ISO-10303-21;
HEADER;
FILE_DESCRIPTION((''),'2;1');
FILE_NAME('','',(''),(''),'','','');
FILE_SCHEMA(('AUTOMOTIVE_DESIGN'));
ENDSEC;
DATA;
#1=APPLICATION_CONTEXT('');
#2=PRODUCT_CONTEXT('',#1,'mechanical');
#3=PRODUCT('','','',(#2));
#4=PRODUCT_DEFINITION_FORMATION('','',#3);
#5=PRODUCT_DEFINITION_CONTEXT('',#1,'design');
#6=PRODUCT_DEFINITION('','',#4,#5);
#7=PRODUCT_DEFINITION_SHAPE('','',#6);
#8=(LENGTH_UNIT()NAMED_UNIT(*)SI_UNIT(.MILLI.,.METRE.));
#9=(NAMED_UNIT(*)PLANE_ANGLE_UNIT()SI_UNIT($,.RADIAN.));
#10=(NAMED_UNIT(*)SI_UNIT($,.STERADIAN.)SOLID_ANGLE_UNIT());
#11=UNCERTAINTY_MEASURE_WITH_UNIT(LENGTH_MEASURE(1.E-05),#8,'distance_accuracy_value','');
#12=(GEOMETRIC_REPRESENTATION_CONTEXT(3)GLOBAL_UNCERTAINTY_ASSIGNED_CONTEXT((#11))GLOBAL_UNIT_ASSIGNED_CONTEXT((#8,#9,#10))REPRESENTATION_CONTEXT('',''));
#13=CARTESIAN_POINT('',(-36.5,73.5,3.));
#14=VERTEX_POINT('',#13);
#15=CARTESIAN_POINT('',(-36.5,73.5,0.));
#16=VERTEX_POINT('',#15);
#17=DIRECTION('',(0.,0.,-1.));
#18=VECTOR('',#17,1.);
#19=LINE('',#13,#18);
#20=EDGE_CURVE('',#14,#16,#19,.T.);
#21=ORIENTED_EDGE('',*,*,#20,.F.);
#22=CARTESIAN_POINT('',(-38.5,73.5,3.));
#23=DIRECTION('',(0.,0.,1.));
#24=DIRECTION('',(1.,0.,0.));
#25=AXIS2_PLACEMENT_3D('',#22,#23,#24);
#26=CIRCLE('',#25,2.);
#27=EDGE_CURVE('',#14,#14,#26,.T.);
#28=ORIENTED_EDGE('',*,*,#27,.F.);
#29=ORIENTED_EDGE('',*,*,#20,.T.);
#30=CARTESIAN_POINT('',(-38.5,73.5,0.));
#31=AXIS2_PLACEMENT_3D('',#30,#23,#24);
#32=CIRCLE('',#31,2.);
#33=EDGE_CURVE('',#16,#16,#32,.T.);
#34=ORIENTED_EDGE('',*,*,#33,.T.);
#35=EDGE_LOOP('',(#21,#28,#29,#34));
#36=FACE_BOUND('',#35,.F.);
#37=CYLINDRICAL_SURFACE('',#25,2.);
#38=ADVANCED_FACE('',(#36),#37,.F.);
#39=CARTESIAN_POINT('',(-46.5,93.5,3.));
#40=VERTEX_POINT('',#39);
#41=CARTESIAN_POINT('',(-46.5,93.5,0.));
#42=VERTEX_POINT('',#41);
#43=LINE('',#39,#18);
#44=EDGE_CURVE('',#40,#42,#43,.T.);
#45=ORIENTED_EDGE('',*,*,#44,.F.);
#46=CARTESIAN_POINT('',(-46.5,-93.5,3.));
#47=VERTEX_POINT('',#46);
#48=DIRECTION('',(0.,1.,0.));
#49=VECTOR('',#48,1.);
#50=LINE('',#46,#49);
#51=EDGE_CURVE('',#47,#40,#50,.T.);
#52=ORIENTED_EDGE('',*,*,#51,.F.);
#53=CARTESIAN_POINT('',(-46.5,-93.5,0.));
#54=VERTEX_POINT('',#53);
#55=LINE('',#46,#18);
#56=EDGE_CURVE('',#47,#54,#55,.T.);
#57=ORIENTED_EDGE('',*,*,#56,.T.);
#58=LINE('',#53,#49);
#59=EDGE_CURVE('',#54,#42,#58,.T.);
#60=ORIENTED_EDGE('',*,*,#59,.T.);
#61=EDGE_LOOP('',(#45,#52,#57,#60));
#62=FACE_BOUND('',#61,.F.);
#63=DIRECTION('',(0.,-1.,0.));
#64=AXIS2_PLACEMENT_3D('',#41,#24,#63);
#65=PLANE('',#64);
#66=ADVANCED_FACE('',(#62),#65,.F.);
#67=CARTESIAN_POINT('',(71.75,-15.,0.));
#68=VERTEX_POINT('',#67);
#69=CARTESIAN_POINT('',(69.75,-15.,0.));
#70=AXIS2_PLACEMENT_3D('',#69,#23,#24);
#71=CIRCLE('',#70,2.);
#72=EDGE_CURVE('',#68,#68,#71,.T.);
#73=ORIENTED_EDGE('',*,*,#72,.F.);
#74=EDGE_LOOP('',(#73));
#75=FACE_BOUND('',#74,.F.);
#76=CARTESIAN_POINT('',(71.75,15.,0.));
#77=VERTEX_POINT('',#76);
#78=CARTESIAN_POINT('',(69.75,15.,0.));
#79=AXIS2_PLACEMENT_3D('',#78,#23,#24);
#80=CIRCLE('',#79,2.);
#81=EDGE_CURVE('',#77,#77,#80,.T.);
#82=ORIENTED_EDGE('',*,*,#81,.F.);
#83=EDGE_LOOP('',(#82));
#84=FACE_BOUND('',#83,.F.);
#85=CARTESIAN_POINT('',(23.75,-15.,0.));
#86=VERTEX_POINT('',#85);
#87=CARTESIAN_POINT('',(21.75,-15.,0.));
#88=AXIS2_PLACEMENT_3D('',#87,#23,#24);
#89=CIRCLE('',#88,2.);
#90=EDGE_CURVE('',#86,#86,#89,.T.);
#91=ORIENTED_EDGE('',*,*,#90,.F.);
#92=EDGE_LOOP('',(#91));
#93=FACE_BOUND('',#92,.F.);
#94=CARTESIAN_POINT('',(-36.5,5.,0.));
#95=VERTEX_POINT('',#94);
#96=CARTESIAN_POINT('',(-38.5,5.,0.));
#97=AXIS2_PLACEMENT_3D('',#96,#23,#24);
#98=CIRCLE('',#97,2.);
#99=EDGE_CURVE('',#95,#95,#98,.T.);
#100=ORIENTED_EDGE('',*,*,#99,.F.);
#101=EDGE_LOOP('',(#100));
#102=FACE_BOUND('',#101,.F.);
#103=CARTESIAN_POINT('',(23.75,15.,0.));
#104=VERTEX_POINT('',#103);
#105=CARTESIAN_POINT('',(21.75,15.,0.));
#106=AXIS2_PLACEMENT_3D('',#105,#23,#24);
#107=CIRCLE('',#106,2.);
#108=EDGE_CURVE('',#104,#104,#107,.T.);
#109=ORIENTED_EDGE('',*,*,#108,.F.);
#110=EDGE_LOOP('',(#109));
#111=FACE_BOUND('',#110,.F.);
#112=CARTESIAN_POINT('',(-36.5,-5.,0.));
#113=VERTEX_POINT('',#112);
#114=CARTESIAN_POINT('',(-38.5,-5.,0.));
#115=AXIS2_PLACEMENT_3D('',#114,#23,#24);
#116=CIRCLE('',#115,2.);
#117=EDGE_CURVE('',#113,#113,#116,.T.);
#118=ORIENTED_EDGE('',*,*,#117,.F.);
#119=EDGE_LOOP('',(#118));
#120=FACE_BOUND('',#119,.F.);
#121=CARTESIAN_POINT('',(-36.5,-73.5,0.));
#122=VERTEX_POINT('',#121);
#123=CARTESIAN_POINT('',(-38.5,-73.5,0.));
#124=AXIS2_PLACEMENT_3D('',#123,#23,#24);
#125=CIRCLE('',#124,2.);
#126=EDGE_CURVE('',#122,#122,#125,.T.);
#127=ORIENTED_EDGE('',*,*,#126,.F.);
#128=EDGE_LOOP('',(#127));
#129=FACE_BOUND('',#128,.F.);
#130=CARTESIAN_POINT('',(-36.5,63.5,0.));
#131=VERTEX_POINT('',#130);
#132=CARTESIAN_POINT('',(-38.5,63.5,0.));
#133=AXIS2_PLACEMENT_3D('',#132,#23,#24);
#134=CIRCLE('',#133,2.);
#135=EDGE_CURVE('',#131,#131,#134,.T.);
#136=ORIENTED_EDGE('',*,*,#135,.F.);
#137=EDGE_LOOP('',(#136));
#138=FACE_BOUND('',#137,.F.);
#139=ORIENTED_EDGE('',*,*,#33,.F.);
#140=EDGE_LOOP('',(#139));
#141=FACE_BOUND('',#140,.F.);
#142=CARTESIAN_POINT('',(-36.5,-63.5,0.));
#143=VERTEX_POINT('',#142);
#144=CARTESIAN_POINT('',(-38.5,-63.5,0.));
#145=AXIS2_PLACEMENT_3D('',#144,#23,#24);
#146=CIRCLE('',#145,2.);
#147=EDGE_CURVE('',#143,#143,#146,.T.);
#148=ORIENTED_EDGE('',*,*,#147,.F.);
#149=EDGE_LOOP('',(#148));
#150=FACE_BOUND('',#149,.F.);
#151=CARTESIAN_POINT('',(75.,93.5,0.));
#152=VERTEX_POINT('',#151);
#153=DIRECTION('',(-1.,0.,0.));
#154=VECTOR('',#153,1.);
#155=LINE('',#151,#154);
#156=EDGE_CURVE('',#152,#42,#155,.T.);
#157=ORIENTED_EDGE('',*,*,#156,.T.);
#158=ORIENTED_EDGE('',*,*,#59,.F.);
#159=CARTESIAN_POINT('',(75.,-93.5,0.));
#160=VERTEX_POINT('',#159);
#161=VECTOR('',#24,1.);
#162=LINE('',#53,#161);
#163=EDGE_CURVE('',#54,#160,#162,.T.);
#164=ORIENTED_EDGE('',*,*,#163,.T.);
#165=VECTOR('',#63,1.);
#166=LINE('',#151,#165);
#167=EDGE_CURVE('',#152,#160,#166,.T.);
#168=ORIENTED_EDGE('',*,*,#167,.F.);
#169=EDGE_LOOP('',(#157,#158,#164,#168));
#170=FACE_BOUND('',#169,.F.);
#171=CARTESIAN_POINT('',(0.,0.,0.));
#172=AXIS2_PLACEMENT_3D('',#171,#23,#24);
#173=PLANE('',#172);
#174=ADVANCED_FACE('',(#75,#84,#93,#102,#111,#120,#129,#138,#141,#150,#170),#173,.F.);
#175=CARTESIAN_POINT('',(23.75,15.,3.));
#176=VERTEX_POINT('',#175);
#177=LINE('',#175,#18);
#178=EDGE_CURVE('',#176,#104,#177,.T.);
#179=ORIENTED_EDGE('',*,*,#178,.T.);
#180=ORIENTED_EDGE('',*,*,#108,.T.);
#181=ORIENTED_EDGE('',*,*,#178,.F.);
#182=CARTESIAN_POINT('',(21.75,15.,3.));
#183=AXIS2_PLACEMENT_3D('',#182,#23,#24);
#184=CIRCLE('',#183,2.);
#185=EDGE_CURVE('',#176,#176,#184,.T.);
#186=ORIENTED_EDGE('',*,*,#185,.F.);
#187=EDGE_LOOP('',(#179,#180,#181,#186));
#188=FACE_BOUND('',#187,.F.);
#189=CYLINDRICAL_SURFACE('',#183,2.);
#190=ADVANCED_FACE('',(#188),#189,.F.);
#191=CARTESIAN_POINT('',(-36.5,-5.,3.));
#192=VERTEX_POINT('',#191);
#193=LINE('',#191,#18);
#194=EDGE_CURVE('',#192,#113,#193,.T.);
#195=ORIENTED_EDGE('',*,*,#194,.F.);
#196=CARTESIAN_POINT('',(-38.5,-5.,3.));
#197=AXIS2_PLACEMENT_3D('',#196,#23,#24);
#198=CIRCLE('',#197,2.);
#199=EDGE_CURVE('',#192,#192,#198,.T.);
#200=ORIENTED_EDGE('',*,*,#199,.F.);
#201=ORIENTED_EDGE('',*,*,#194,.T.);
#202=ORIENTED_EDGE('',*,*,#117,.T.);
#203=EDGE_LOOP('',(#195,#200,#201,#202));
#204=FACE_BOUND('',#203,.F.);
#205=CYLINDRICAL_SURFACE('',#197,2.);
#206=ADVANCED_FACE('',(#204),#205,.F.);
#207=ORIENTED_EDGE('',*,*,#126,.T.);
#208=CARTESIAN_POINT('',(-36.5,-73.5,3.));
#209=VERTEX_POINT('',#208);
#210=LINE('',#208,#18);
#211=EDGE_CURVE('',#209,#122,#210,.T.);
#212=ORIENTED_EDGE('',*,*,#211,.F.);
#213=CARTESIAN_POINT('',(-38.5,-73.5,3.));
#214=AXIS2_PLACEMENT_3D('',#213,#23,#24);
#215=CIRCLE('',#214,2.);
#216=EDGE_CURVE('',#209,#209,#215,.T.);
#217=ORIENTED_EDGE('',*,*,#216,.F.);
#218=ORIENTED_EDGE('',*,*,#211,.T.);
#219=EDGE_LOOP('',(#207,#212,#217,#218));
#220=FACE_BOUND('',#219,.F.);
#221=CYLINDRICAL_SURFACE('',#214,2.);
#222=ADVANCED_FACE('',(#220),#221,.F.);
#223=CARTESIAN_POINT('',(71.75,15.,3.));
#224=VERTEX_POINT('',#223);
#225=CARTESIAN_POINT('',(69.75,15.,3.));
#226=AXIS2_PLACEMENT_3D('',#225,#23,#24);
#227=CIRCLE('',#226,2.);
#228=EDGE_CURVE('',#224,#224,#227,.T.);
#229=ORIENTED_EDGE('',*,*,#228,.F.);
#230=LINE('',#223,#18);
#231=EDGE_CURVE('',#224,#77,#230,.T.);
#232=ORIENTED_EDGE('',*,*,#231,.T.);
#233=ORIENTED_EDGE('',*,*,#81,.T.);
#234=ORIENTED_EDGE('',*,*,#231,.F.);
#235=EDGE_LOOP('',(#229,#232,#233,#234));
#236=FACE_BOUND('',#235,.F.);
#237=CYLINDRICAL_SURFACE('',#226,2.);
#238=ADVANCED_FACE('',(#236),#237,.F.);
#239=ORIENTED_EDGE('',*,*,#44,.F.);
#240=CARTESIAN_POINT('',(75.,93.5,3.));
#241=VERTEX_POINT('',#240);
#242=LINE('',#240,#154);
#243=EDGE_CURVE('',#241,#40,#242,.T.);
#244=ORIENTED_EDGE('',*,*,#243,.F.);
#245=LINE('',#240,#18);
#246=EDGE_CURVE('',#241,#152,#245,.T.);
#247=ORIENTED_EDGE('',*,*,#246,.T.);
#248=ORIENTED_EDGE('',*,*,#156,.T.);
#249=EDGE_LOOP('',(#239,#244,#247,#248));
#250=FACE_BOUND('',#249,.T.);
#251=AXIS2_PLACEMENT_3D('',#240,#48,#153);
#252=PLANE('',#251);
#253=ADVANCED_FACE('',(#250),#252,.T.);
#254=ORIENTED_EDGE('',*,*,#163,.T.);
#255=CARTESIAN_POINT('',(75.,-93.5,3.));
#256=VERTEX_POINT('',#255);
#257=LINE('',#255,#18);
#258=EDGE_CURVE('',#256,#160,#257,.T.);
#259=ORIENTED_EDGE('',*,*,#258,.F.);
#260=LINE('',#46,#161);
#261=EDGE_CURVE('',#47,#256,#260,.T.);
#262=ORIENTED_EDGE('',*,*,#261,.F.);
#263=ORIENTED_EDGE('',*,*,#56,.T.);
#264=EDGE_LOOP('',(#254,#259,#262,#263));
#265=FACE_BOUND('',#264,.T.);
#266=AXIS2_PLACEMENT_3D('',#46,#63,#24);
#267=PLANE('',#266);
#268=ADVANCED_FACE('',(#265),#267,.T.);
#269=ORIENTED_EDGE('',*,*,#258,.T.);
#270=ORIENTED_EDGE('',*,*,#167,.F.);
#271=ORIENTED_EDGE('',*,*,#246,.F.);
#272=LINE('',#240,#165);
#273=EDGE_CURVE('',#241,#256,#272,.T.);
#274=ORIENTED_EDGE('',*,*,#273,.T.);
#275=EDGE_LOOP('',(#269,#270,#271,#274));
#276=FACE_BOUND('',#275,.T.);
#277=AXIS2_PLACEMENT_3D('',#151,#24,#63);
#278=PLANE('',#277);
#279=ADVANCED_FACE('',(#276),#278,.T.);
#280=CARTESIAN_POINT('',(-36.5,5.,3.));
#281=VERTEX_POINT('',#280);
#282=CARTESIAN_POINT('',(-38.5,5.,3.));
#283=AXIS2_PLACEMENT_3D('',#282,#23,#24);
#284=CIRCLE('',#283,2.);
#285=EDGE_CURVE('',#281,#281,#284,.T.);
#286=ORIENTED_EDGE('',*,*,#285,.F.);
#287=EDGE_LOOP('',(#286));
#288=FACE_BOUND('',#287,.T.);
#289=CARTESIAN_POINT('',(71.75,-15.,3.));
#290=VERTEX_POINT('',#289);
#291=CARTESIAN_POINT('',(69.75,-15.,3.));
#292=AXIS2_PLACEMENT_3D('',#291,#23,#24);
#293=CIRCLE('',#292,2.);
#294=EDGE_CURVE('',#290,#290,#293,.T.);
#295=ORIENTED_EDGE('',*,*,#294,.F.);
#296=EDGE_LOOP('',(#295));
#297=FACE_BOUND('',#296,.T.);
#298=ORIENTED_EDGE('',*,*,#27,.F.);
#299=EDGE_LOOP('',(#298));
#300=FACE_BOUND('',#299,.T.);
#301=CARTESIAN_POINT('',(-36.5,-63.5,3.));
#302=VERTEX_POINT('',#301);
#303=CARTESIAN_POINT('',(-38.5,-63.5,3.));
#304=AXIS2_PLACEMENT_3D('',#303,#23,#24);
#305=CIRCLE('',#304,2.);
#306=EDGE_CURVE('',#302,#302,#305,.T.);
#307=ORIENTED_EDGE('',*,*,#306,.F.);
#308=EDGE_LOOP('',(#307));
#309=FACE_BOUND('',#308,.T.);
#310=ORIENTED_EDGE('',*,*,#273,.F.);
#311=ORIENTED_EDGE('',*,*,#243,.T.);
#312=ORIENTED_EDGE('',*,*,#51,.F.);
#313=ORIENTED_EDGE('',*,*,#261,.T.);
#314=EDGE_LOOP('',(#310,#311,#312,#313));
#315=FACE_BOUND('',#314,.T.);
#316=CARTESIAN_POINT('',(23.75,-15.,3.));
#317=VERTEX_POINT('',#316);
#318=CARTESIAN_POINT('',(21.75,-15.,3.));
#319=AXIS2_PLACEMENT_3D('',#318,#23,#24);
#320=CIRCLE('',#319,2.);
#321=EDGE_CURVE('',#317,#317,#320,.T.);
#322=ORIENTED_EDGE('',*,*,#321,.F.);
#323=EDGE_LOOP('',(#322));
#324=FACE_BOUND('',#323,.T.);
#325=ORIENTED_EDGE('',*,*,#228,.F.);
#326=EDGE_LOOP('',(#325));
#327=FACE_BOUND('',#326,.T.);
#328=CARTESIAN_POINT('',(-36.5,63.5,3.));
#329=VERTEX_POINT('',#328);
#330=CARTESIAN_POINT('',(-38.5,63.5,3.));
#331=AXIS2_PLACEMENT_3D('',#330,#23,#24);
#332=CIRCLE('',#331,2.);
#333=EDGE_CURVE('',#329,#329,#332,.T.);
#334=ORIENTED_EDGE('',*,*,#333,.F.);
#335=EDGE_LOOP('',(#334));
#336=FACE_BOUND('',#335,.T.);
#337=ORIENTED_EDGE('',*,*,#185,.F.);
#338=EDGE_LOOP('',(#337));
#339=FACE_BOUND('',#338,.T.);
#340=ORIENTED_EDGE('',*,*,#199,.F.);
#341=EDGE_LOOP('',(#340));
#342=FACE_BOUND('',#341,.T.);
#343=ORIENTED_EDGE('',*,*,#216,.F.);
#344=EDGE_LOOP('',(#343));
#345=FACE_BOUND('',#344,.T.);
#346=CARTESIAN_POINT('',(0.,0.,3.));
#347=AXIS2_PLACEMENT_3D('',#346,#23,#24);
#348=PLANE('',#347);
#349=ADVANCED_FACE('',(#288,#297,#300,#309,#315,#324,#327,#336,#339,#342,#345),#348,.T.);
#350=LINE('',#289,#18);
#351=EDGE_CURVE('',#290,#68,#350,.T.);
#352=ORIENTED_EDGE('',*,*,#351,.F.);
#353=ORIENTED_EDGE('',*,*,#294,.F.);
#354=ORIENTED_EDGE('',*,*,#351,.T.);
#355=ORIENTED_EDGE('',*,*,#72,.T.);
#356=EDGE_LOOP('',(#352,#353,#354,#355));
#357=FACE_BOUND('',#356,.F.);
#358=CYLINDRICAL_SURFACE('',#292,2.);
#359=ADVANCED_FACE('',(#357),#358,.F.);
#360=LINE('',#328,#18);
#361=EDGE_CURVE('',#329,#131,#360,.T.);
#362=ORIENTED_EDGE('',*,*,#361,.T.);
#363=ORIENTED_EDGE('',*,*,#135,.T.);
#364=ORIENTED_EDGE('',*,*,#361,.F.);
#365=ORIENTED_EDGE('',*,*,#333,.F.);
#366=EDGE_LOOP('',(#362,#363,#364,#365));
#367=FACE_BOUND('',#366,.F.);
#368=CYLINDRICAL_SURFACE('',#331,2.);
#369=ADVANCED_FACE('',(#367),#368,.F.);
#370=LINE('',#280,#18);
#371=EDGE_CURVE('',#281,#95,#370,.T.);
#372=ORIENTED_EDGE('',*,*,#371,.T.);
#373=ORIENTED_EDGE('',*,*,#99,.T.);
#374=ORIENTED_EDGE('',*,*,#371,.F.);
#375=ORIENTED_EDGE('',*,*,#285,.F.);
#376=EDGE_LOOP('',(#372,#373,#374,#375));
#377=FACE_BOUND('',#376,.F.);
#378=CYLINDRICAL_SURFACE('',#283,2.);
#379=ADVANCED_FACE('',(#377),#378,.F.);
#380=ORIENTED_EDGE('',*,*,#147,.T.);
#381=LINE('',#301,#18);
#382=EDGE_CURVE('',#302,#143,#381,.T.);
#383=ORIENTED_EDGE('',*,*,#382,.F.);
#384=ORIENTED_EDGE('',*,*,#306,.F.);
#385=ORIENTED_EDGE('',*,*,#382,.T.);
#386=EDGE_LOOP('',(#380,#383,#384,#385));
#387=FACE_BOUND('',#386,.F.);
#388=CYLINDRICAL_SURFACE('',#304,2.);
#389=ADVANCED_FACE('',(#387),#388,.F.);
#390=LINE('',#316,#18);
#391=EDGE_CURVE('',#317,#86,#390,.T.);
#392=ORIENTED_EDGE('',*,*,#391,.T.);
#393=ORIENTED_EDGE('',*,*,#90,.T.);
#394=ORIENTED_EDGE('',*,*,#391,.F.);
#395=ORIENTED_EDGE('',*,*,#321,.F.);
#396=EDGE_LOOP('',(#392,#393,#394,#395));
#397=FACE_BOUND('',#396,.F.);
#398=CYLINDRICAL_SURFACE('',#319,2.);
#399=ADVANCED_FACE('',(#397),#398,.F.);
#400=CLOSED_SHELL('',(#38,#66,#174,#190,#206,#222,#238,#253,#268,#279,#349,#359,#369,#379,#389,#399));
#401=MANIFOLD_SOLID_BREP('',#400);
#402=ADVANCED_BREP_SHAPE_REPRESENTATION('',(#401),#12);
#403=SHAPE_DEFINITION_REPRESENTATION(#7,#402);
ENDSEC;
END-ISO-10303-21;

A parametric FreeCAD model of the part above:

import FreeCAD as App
import Part
import Sketcher

V = App.Vector

doc = App.newDocument("Part")
params = doc.addObject("Spreadsheet::Sheet", "Params")
for row, (alias, value) in enumerate([
    ("sketch1_width", "181 mm"),
    ("pad1_length", "3 mm"),
    ("sketch2_width", "3 mm"),
    ("sketch2_height", "15 mm"),
    ("pocket1_length", "3 mm"),
    ("sketch3_width", "5 mm"),
    ("sketch3_height", "3 mm"),
    ("pad2_length", "3 mm"),
    ("sketch4_width", "44 mm"),
    ("sketch4_height", "187 mm"),
    ("sketch4_width2", "15.5 mm"),
    ("pocket2_length", "10 mm"),
    ("sketch5_diameter", "4 mm"),
    ("pocket3_length", "10 mm"),
    ("sketch6_height", "3 mm"),
    ("sketch6_width", "121.5 mm"),
    ("pad3_length", "3 mm"),
    ("sketch7_diameter", "4 mm"),
    ("pocket4_length", "3 mm"),
], start=1):
    params.set(f"A{row}", alias)
    params.set(f"B{row}", "=" + value)
    params.setAlias(f"B{row}", alias)

body = doc.addObject("PartDesign::Body", "Body")

# Sketch on XY plane
sketch1 = body.newObject("Sketcher::SketchObject", "Sketch")
sketch1.AttachmentSupport = (doc.getObject("XY_Plane"), [""])
sketch1.MapMode = "FlatFace"
sketch1.addGeometry([
    Part.LineSegment(V(-90.5, 90.5, 0), V(-90.5, -90.5, 0)),
    Part.LineSegment(V(-90.5, -90.5, 0), V(90.5, -90.5, 0)),
    Part.LineSegment(V(90.5, -90.5, 0), V(90.5, 90.5, 0)),
    Part.LineSegment(V(90.5, 90.5, 0), V(-90.5, 90.5, 0)),
], False)
sketch1.addConstraint([
    Sketcher.Constraint("Coincident", 0, 2, 1, 1),
    Sketcher.Constraint("Coincident", 1, 2, 2, 1),
    Sketcher.Constraint("Coincident", 2, 2, 3, 1),
    Sketcher.Constraint("Coincident", 3, 2, 0, 1),
    Sketcher.Constraint("Vertical", 0),
    Sketcher.Constraint("Horizontal", 1),
    Sketcher.Constraint("Vertical", 2),
    Sketcher.Constraint("Horizontal", 3),
    Sketcher.Constraint("Symmetric", 0, 2, 2, 2, -1, 1),
    Sketcher.Constraint("Equal", 3, 0),
    Sketcher.Constraint("DistanceX", 1, 1, 1, 2, 181.0),
])
sketch1.setExpression("Constraints[10]", "Params.sketch1_width")
pad1 = body.newObject("PartDesign::Pad", "Pad")
pad1.Profile = sketch1
pad1.setExpression("Length", "Params.pad1_length")

# Sketch on XY plane
sketch2 = body.newObject("Sketcher::SketchObject", "Sketch001")
sketch2.AttachmentSupport = (doc.getObject("XY_Plane"), [""])
sketch2.MapMode = "FlatFace"
sketch2.AttachmentOffset = App.Placement(V(0, 0, 3), App.Rotation())
sketch2.addGeometry([
    Part.LineSegment(V(-87.5, 82.5, 0), V(-90.5, 82.5, 0)),  # 0
    Part.LineSegment(V(-90.5, 82.5, 0), V(-90.5, 67.5, 0)),  # 1
    Part.LineSegment(V(-90.5, 67.5, 0), V(-87.5, 67.5, 0)),  # 2
    Part.LineSegment(V(-87.5, 67.5, 0), V(-87.5, 82.5, 0)),  # 3
    Part.LineSegment(V(-87.5, -67.5, 0), V(-90.5, -67.5, 0)),  # 4
    Part.LineSegment(V(-90.5, -67.5, 0), V(-90.5, -82.5, 0)),  # 5
    Part.LineSegment(V(-90.5, -82.5, 0), V(-87.5, -82.5, 0)),  # 6
    Part.LineSegment(V(-87.5, -82.5, 0), V(-87.5, -67.5, 0)),  # 7
    Part.LineSegment(V(-87.5, -37.5, 0), V(-90.5, -37.5, 0)),  # 8
    Part.LineSegment(V(-90.5, -37.5, 0), V(-90.5, -52.5, 0)),  # 9
    Part.LineSegment(V(-90.5, -52.5, 0), V(-87.5, -52.5, 0)),  # 10
    Part.LineSegment(V(-87.5, -52.5, 0), V(-87.5, -37.5, 0)),  # 11
    Part.LineSegment(V(-87.5, -7.5, 0), V(-90.5, -7.5, 0)),  # 12
    Part.LineSegment(V(-90.5, -7.5, 0), V(-90.5, -22.5, 0)),  # 13
    Part.LineSegment(V(-90.5, -22.5, 0), V(-87.5, -22.5, 0)),  # 14
    Part.LineSegment(V(-87.5, -22.5, 0), V(-87.5, -7.5, 0)),  # 15
    Part.LineSegment(V(-87.5, 22.5, 0), V(-90.5, 22.5, 0)),  # 16
    Part.LineSegment(V(-90.5, 22.5, 0), V(-90.5, 7.5, 0)),  # 17
    Part.LineSegment(V(-90.5, 7.5, 0), V(-87.5, 7.5, 0)),  # 18
    Part.LineSegment(V(-87.5, 7.5, 0), V(-87.5, 22.5, 0)),  # 19
    Part.LineSegment(V(-87.5, 52.5, 0), V(-90.5, 52.5, 0)),  # 20
    Part.LineSegment(V(-90.5, 52.5, 0), V(-90.5, 37.5, 0)),  # 21
    Part.LineSegment(V(-90.5, 37.5, 0), V(-87.5, 37.5, 0)),  # 22
    Part.LineSegment(V(-87.5, 37.5, 0), V(-87.5, 52.5, 0)),  # 23
    Part.LineSegment(V(90.5, 82.5, 0), V(87.5, 82.5, 0)),  # 24
    Part.LineSegment(V(87.5, 82.5, 0), V(87.5, 67.5, 0)),  # 25
    Part.LineSegment(V(87.5, 67.5, 0), V(90.5, 67.5, 0)),  # 26
    Part.LineSegment(V(90.5, 67.5, 0), V(90.5, 82.5, 0)),  # 27
    Part.LineSegment(V(90.5, 52.5, 0), V(87.5, 52.5, 0)),  # 28
    Part.LineSegment(V(87.5, 52.5, 0), V(87.5, 37.5, 0)),  # 29
    Part.LineSegment(V(87.5, 37.5, 0), V(90.5, 37.5, 0)),  # 30
    Part.LineSegment(V(90.5, 37.5, 0), V(90.5, 52.5, 0)),  # 31
    Part.LineSegment(V(90.5, 22.5, 0), V(87.5, 22.5, 0)),  # 32
    Part.LineSegment(V(87.5, 22.5, 0), V(87.5, 7.5, 0)),  # 33
    Part.LineSegment(V(87.5, 7.5, 0), V(90.5, 7.5, 0)),  # 34
    Part.LineSegment(V(90.5, 7.5, 0), V(90.5, 22.5, 0)),  # 35
    Part.LineSegment(V(90.5, -7.5, 0), V(87.5, -7.5, 0)),  # 36
    Part.LineSegment(V(87.5, -7.5, 0), V(87.5, -22.5, 0)),  # 37
    Part.LineSegment(V(87.5, -22.5, 0), V(90.5, -22.5, 0)),  # 38
    Part.LineSegment(V(90.5, -22.5, 0), V(90.5, -7.5, 0)),  # 39
    Part.LineSegment(V(90.5, -37.5, 0), V(87.5, -37.5, 0)),  # 40
    Part.LineSegment(V(87.5, -37.5, 0), V(87.5, -52.5, 0)),  # 41
    Part.LineSegment(V(87.5, -52.5, 0), V(90.5, -52.5, 0)),  # 42
    Part.LineSegment(V(90.5, -52.5, 0), V(90.5, -37.5, 0)),  # 43
    Part.LineSegment(V(90.5, -67.5, 0), V(87.5, -67.5, 0)),  # 44
    Part.LineSegment(V(87.5, -67.5, 0), V(87.5, -82.5, 0)),  # 45
    Part.LineSegment(V(87.5, -82.5, 0), V(90.5, -82.5, 0)),  # 46
    Part.LineSegment(V(90.5, -82.5, 0), V(90.5, -67.5, 0)),  # 47
], False)
sketch2.addConstraint([
    Sketcher.Constraint("Coincident", 0, 2, 1, 1),
    Sketcher.Constraint("Coincident", 1, 2, 2, 1),
    Sketcher.Constraint("Coincident", 2, 2, 3, 1),
    Sketcher.Constraint("Coincident", 3, 2, 0, 1),
    Sketcher.Constraint("Coincident", 4, 2, 5, 1),
    Sketcher.Constraint("Coincident", 5, 2, 6, 1),
    Sketcher.Constraint("Coincident", 6, 2, 7, 1),
    Sketcher.Constraint("Coincident", 7, 2, 4, 1),
    Sketcher.Constraint("Coincident", 8, 2, 9, 1),
    Sketcher.Constraint("Coincident", 9, 2, 10, 1),
    Sketcher.Constraint("Coincident", 10, 2, 11, 1),
    Sketcher.Constraint("Coincident", 11, 2, 8, 1),
    Sketcher.Constraint("Coincident", 12, 2, 13, 1),
    Sketcher.Constraint("Coincident", 13, 2, 14, 1),
    Sketcher.Constraint("Coincident", 14, 2, 15, 1),
    Sketcher.Constraint("Coincident", 15, 2, 12, 1),
    Sketcher.Constraint("Coincident", 16, 2, 17, 1),
    Sketcher.Constraint("Coincident", 17, 2, 18, 1),
    Sketcher.Constraint("Coincident", 18, 2, 19, 1),
    Sketcher.Constraint("Coincident", 19, 2, 16, 1),
    Sketcher.Constraint("Coincident", 20, 2, 21, 1),
    Sketcher.Constraint("Coincident", 21, 2, 22, 1),
    Sketcher.Constraint("Coincident", 22, 2, 23, 1),
    Sketcher.Constraint("Coincident", 23, 2, 20, 1),
    Sketcher.Constraint("Coincident", 24, 2, 25, 1),
    Sketcher.Constraint("Coincident", 25, 2, 26, 1),
    Sketcher.Constraint("Coincident", 26, 2, 27, 1),
    Sketcher.Constraint("Coincident", 27, 2, 24, 1),
    Sketcher.Constraint("Coincident", 28, 2, 29, 1),
    Sketcher.Constraint("Coincident", 29, 2, 30, 1),
    Sketcher.Constraint("Coincident", 30, 2, 31, 1),
    Sketcher.Constraint("Coincident", 31, 2, 28, 1),
    Sketcher.Constraint("Coincident", 32, 2, 33, 1),
    Sketcher.Constraint("Coincident", 33, 2, 34, 1),
    Sketcher.Constraint("Coincident", 34, 2, 35, 1),
    Sketcher.Constraint("Coincident", 35, 2, 32, 1),
    Sketcher.Constraint("Coincident", 36, 2, 37, 1),
    Sketcher.Constraint("Coincident", 37, 2, 38, 1),
    Sketcher.Constraint("Coincident", 38, 2, 39, 1),
    Sketcher.Constraint("Coincident", 39, 2, 36, 1),
    Sketcher.Constraint("Coincident", 40, 2, 41, 1),
    Sketcher.Constraint("Coincident", 41, 2, 42, 1),
    Sketcher.Constraint("Coincident", 42, 2, 43, 1),
    Sketcher.Constraint("Coincident", 43, 2, 40, 1),
    Sketcher.Constraint("Coincident", 44, 2, 45, 1),
    Sketcher.Constraint("Coincident", 45, 2, 46, 1),
    Sketcher.Constraint("Coincident", 46, 2, 47, 1),
    Sketcher.Constraint("Coincident", 47, 2, 44, 1),
    Sketcher.Constraint("Horizontal", 0),
    Sketcher.Constraint("Vertical", 1),
    Sketcher.Constraint("Horizontal", 2),
    Sketcher.Constraint("Vertical", 3),
    Sketcher.Constraint("Horizontal", 4),
    Sketcher.Constraint("Vertical", 5),
    Sketcher.Constraint("Horizontal", 6),
    Sketcher.Constraint("Vertical", 7),
    Sketcher.Constraint("Horizontal", 8),
    Sketcher.Constraint("Vertical", 9),
    Sketcher.Constraint("Horizontal", 10),
    Sketcher.Constraint("Vertical", 11),
    Sketcher.Constraint("Horizontal", 12),
    Sketcher.Constraint("Vertical", 13),
    Sketcher.Constraint("Horizontal", 14),
    Sketcher.Constraint("Vertical", 15),
    Sketcher.Constraint("Horizontal", 16),
    Sketcher.Constraint("Vertical", 17),
    Sketcher.Constraint("Horizontal", 18),
    Sketcher.Constraint("Vertical", 19),
    Sketcher.Constraint("Horizontal", 20),
    Sketcher.Constraint("Vertical", 21),
    Sketcher.Constraint("Horizontal", 22),
    Sketcher.Constraint("Vertical", 23),
    Sketcher.Constraint("Horizontal", 24),
    Sketcher.Constraint("Vertical", 25),
    Sketcher.Constraint("Horizontal", 26),
    Sketcher.Constraint("Vertical", 27),
    Sketcher.Constraint("Horizontal", 28),
    Sketcher.Constraint("Vertical", 29),
    Sketcher.Constraint("Horizontal", 30),
    Sketcher.Constraint("Vertical", 31),
    Sketcher.Constraint("Horizontal", 32),
    Sketcher.Constraint("Vertical", 33),
    Sketcher.Constraint("Horizontal", 34),
    Sketcher.Constraint("Vertical", 35),
    Sketcher.Constraint("Horizontal", 36),
    Sketcher.Constraint("Vertical", 37),
    Sketcher.Constraint("Horizontal", 38),
    Sketcher.Constraint("Vertical", 39),
    Sketcher.Constraint("Horizontal", 40),
    Sketcher.Constraint("Vertical", 41),
    Sketcher.Constraint("Horizontal", 42),
    Sketcher.Constraint("Vertical", 43),
    Sketcher.Constraint("Horizontal", 44),
    Sketcher.Constraint("Vertical", 45),
    Sketcher.Constraint("Horizontal", 46),
    Sketcher.Constraint("Vertical", 47),
    Sketcher.Constraint("Symmetric", 6, 2, 24, 2, -1, 1),
    Sketcher.Constraint("Symmetric", 4, 2, 26, 2, -1, 1),
    Sketcher.Constraint("Symmetric", 10, 2, 28, 2, -1, 1),
    Sketcher.Constraint("Symmetric", 8, 2, 30, 2, -1, 1),
    Sketcher.Constraint("Symmetric", 14, 2, 32, 2, -1, 1),
    Sketcher.Constraint("Symmetric", 12, 2, 34, 2, -1, 1),
    Sketcher.Constraint("Symmetric", 18, 2, 36, 2, -1, 1),
    Sketcher.Constraint("Symmetric", 16, 2, 38, 2, -1, 1),
    Sketcher.Constraint("Symmetric", 22, 2, 40, 2, -1, 1),
    Sketcher.Constraint("Symmetric", 20, 2, 42, 2, -1, 1),
    Sketcher.Constraint("Symmetric", 2, 2, 44, 2, -1, 1),
    Sketcher.Constraint("Symmetric", 0, 2, 46, 2, -1, 1),
    Sketcher.Constraint("Symmetric", 3, 2, 24, 2, -2),
    Sketcher.Constraint("Symmetric", 1, 2, 26, 2, -2),
    Sketcher.Constraint("Symmetric", 23, 2, 28, 2, -2),
    Sketcher.Constraint("Symmetric", 21, 2, 30, 2, -2),
    Sketcher.Constraint("Symmetric", 19, 2, 32, 2, -2),
    Sketcher.Constraint("Symmetric", 17, 2, 34, 2, -2),
    Sketcher.Constraint("Vertical", 5, 2, 8, 2),
    Sketcher.Constraint("Vertical", 7, 2, 10, 2),
    Sketcher.Constraint("Vertical", 9, 2, 12, 2),
    Sketcher.Constraint("Vertical", 11, 2, 14, 2),
    Sketcher.Constraint("Equal", 7, 9),
    Sketcher.Constraint("Equal", 11, 13),
    Sketcher.Constraint("DistanceX", 0, 2, 0, 1, 3.0),
    Sketcher.Constraint("DistanceY", 1, 2, 1, 1, 15.0),
    Sketcher.Constraint("DistanceY", 4, 2, 8, 2, 30.0),
    Sketcher.Constraint("DistanceY", 8, 2, 12, 2, 30.0),
    Sketcher.Constraint("DistanceY", 12, 2, 16, 2, 30.0),
    Sketcher.Constraint("DistanceX", 0, 2, 24, 2, 178.0),
])
sketch2.setExpression("Constraints[120]", "Params.sketch2_width")
sketch2.setExpression("Constraints[121]", "Params.sketch2_height")
pocket1 = body.newObject("PartDesign::Pocket", "Pocket")
pocket1.Profile = sketch2
pocket1.setExpression("Length", "Params.pocket1_length")

# Sketch on XY plane
sketch3 = body.newObject("Sketcher::SketchObject", "Sketch002")
sketch3.AttachmentSupport = (doc.getObject("XY_Plane"), [""])
sketch3.MapMode = "FlatFace"
sketch3.AttachmentOffset = App.Placement(V(0, 0, 3), App.Rotation())
sketch3.addGeometry([
    Part.LineSegment(V(85.5, 90.5, 0), V(90.5, 90.5, 0)),  # 0
    Part.LineSegment(V(90.5, 90.5, 0), V(90.5, 93.5, 0)),  # 1
    Part.LineSegment(V(90.5, 93.5, 0), V(85.5, 93.5, 0)),  # 2
    Part.LineSegment(V(85.5, 93.5, 0), V(85.5, 90.5, 0)),  # 3
    Part.LineSegment(V(90.5, -90.5, 0), V(85.5, -90.5, 0)),  # 4
    Part.LineSegment(V(85.5, -90.5, 0), V(85.5, -93.5, 0)),  # 5
    Part.LineSegment(V(85.5, -93.5, 0), V(90.5, -93.5, 0)),  # 6
    Part.LineSegment(V(90.5, -93.5, 0), V(90.5, -90.5, 0)),  # 7
], False)
sketch3.addConstraint([
    Sketcher.Constraint("Coincident", 0, 2, 1, 1),
    Sketcher.Constraint("Coincident", 1, 2, 2, 1),
    Sketcher.Constraint("Coincident", 2, 2, 3, 1),
    Sketcher.Constraint("Coincident", 3, 2, 0, 1),
    Sketcher.Constraint("Coincident", 4, 2, 5, 1),
    Sketcher.Constraint("Coincident", 5, 2, 6, 1),
    Sketcher.Constraint("Coincident", 6, 2, 7, 1),
    Sketcher.Constraint("Coincident", 7, 2, 4, 1),
    Sketcher.Constraint("Horizontal", 0),
    Sketcher.Constraint("Vertical", 1),
    Sketcher.Constraint("Horizontal", 2),
    Sketcher.Constraint("Vertical", 3),
    Sketcher.Constraint("Horizontal", 4),
    Sketcher.Constraint("Vertical", 5),
    Sketcher.Constraint("Horizontal", 6),
    Sketcher.Constraint("Vertical", 7),
    Sketcher.Constraint("Symmetric", 3, 2, 4, 2, -1),
    Sketcher.Constraint("Symmetric", 1, 2, 6, 2, -1),
    Sketcher.Constraint("DistanceY", 4, 2, 2, 2, 184.0),
    Sketcher.Constraint("DistanceX", 0, 1, 0, 2, 5.0),
    Sketcher.Constraint("DistanceY", 1, 1, 1, 2, 3.0),
    Sketcher.Constraint("DistanceX", -1, 1, 0, 2, 90.5),
])
sketch3.setExpression("Constraints[19]", "Params.sketch3_width")
sketch3.setExpression("Constraints[20]", "Params.sketch3_height")
pad2 = body.newObject("PartDesign::Pad", "Pad001")
pad2.Profile = sketch3
pad2.setExpression("Length", "Params.pad2_length")
pad2.Reversed = True

# Sketch on XY plane
sketch4 = body.newObject("Sketcher::SketchObject", "Sketch003")
sketch4.AttachmentSupport = (doc.getObject("XY_Plane"), [""])
sketch4.MapMode = "FlatFace"
sketch4.addGeometry([
    Part.LineSegment(V(90.5, 93.5, 0), V(90.5, -93.5, 0)),  # 0
    Part.LineSegment(V(90.5, -93.5, 0), V(75, -93.5, 0)),  # 1
    Part.LineSegment(V(75, -93.5, 0), V(75, 93.5, 0)),  # 2
    Part.LineSegment(V(75, 93.5, 0), V(90.5, 93.5, 0)),  # 3
    Part.LineSegment(V(-90.5, 93.5, 0), V(-46.5, 93.5, 0)),  # 4
    Part.LineSegment(V(-46.5, 93.5, 0), V(-46.5, -93.5, 0)),  # 5
    Part.LineSegment(V(-46.5, -93.5, 0), V(-90.5, -93.5, 0)),  # 6
    Part.LineSegment(V(-90.5, -93.5, 0), V(-90.5, 93.5, 0)),  # 7
], False)
sketch4.addConstraint([
    Sketcher.Constraint("Coincident", 0, 2, 1, 1),
    Sketcher.Constraint("Coincident", 1, 2, 2, 1),
    Sketcher.Constraint("Coincident", 2, 2, 3, 1),
    Sketcher.Constraint("Coincident", 3, 2, 0, 1),
    Sketcher.Constraint("Coincident", 4, 2, 5, 1),
    Sketcher.Constraint("Coincident", 5, 2, 6, 1),
    Sketcher.Constraint("Coincident", 6, 2, 7, 1),
    Sketcher.Constraint("Coincident", 7, 2, 4, 1),
    Sketcher.Constraint("Vertical", 0),
    Sketcher.Constraint("Horizontal", 1),
    Sketcher.Constraint("Vertical", 2),
    Sketcher.Constraint("Horizontal", 3),
    Sketcher.Constraint("Horizontal", 4),
    Sketcher.Constraint("Vertical", 5),
    Sketcher.Constraint("Horizontal", 6),
    Sketcher.Constraint("Vertical", 7),
    Sketcher.Constraint("Symmetric", 3, 2, 6, 2, -1, 1),
    Sketcher.Constraint("Horizontal", 3, 2, 4, 2),
    Sketcher.Constraint("Horizontal", 1, 2, 5, 2),
    Sketcher.Constraint("DistanceX", 4, 1, 4, 2, 44.0),
    Sketcher.Constraint("DistanceY", 0, 2, 0, 1, 187.0),
    Sketcher.Constraint("DistanceX", 1, 2, 1, 1, 15.5),
    Sketcher.Constraint("DistanceX", -1, 1, 1, 2, 75.0),
])
sketch4.setExpression("Constraints[19]", "Params.sketch4_width")
sketch4.setExpression("Constraints[20]", "Params.sketch4_height")
sketch4.setExpression("Constraints[21]", "Params.sketch4_width2")
pocket2 = body.newObject("PartDesign::Pocket", "Pocket001")
pocket2.Profile = sketch4
pocket2.setExpression("Length", "Params.pocket2_length")
pocket2.Reversed = True

# Sketch on XY plane
sketch5 = body.newObject("Sketcher::SketchObject", "Sketch004")
sketch5.AttachmentSupport = (doc.getObject("XY_Plane"), [""])
sketch5.MapMode = "FlatFace"
sketch5.AttachmentOffset = App.Placement(V(0, 0, 3), App.Rotation())
sketch5.addGeometry([
    Part.Circle(V(-38.5, 73.5, 0), V(0, 0, 1), 2),  # 0
    Part.Circle(V(-38.5, 63.5, 0), V(0, 0, 1), 2),  # 1
    Part.Circle(V(-38.5, 5, 0), V(0, 0, 1), 2),  # 2
    Part.Circle(V(-38.5, -5, 0), V(0, 0, 1), 2),  # 3
    Part.Circle(V(-38.5, -63.5, 0), V(0, 0, 1), 2),  # 4
    Part.Circle(V(-38.5, -73.5, 0), V(0, 0, 1), 2),  # 5
], False)
sketch5.addConstraint([
    Sketcher.Constraint("Equal", 0, 1),
    Sketcher.Constraint("Equal", 1, 2),
    Sketcher.Constraint("Equal", 2, 3),
    Sketcher.Constraint("Equal", 3, 4),
    Sketcher.Constraint("Equal", 4, 5),
    Sketcher.Constraint("Symmetric", 2, 3, 3, 3, -1),
    Sketcher.Constraint("Symmetric", 1, 3, 4, 3, -1),
    Sketcher.Constraint("Symmetric", 0, 3, 5, 3, -1),
    Sketcher.Constraint("Vertical", 0, 3, 1, 3),
    Sketcher.Constraint("Vertical", 1, 3, 2, 3),
    Sketcher.Constraint("Diameter", 0, 4.0),
    Sketcher.Constraint("DistanceY", -1, 1, 2, 3, 5.0),
    Sketcher.Constraint("DistanceY", 1, 3, 0, 3, 10.0),
    Sketcher.Constraint("DistanceY", 4, 3, 1, 3, 127.0),
    Sketcher.Constraint("DistanceX", 0, 3, -1, 1, 38.5),
])
sketch5.setExpression("Constraints[10]", "Params.sketch5_diameter")
pocket3 = body.newObject("PartDesign::Pocket", "Pocket002")
pocket3.Profile = sketch5
pocket3.setExpression("Length", "Params.pocket3_length")

# Sketch on XY plane
sketch6 = body.newObject("Sketcher::SketchObject", "Sketch005")
sketch6.AttachmentSupport = (doc.getObject("XY_Plane"), [""])
sketch6.MapMode = "FlatFace"
sketch6.AttachmentOffset = App.Placement(V(0, 0, 3), App.Rotation())
sketch6.addGeometry([
    Part.LineSegment(V(-46.5, 93.5, 0), V(-46.5, 90.5, 0)),  # 0
    Part.LineSegment(V(-46.5, 90.5, 0), V(75, 90.5, 0)),  # 1
    Part.LineSegment(V(75, 90.5, 0), V(75, 93.5, 0)),  # 2
    Part.LineSegment(V(75, 93.5, 0), V(-46.5, 93.5, 0)),  # 3
    Part.LineSegment(V(-46.5, -90.5, 0), V(-46.5, -93.5, 0)),  # 4
    Part.LineSegment(V(-46.5, -93.5, 0), V(75, -93.5, 0)),  # 5
    Part.LineSegment(V(75, -93.5, 0), V(75, -90.5, 0)),  # 6
    Part.LineSegment(V(75, -90.5, 0), V(-46.5, -90.5, 0)),  # 7
], False)
sketch6.addConstraint([
    Sketcher.Constraint("Coincident", 0, 2, 1, 1),
    Sketcher.Constraint("Coincident", 1, 2, 2, 1),
    Sketcher.Constraint("Coincident", 2, 2, 3, 1),
    Sketcher.Constraint("Coincident", 3, 2, 0, 1),
    Sketcher.Constraint("Coincident", 4, 2, 5, 1),
    Sketcher.Constraint("Coincident", 5, 2, 6, 1),
    Sketcher.Constraint("Coincident", 6, 2, 7, 1),
    Sketcher.Constraint("Coincident", 7, 2, 4, 1),
    Sketcher.Constraint("Vertical", 0),
    Sketcher.Constraint("Horizontal", 1),
    Sketcher.Constraint("Vertical", 2),
    Sketcher.Constraint("Horizontal", 3),
    Sketcher.Constraint("Vertical", 4),
    Sketcher.Constraint("Horizontal", 5),
    Sketcher.Constraint("Vertical", 6),
    Sketcher.Constraint("Horizontal", 7),
    Sketcher.Constraint("Symmetric", 3, 2, 4, 2, -1),
    Sketcher.Constraint("Symmetric", 1, 2, 6, 2, -1),
    Sketcher.Constraint("DistanceY", 0, 2, 0, 1, 3.0),
    Sketcher.Constraint("DistanceX", 1, 1, 1, 2, 121.5),
    Sketcher.Constraint("DistanceY", 4, 2, 0, 2, 184.0),
    Sketcher.Constraint("DistanceX", -1, 1, 1, 2, 75.0),
])
sketch6.setExpression("Constraints[18]", "Params.sketch6_height")
sketch6.setExpression("Constraints[19]", "Params.sketch6_width")
pad3 = body.newObject("PartDesign::Pad", "Pad002")
pad3.Profile = sketch6
pad3.setExpression("Length", "Params.pad3_length")
pad3.Reversed = True

# Sketch on XY plane
sketch7 = body.newObject("Sketcher::SketchObject", "Sketch006")
sketch7.AttachmentSupport = (doc.getObject("XY_Plane"), [""])
sketch7.MapMode = "FlatFace"
sketch7.AttachmentOffset = App.Placement(V(0, 0, 3), App.Rotation())
sketch7.addGeometry([
    Part.Circle(V(21.75, 15, 0), V(0, 0, 1), 2),
    Part.Circle(V(69.75, 15, 0), V(0, 0, 1), 2),
    Part.Circle(V(69.75, -15, 0), V(0, 0, 1), 2),
    Part.Circle(V(21.75, -15, 0), V(0, 0, 1), 2),
], False)
sketch7.addConstraint([
    Sketcher.Constraint("Equal", 0, 1),
    Sketcher.Constraint("Equal", 1, 2),
    Sketcher.Constraint("Equal", 2, 3),
    Sketcher.Constraint("Symmetric", 1, 3, 2, 3, -1),
    Sketcher.Constraint("Symmetric", 0, 3, 3, 3, -1),
    Sketcher.Constraint("Horizontal", 0, 3, 1, 3),
    Sketcher.Constraint("Diameter", 0, 4.0),
    Sketcher.Constraint("DistanceX", 0, 3, 1, 3, 48.0),
    Sketcher.Constraint("DistanceY", 2, 3, 1, 3, 30.0),
    Sketcher.Constraint("DistanceX", -1, 1, 0, 3, 21.75),
])
sketch7.setExpression("Constraints[6]", "Params.sketch7_diameter")
pocket4 = body.newObject("PartDesign::Pocket", "Pocket003")
pocket4.Profile = sketch7
pocket4.setExpression("Length", "Params.pocket4_length")

doc.recompute()
